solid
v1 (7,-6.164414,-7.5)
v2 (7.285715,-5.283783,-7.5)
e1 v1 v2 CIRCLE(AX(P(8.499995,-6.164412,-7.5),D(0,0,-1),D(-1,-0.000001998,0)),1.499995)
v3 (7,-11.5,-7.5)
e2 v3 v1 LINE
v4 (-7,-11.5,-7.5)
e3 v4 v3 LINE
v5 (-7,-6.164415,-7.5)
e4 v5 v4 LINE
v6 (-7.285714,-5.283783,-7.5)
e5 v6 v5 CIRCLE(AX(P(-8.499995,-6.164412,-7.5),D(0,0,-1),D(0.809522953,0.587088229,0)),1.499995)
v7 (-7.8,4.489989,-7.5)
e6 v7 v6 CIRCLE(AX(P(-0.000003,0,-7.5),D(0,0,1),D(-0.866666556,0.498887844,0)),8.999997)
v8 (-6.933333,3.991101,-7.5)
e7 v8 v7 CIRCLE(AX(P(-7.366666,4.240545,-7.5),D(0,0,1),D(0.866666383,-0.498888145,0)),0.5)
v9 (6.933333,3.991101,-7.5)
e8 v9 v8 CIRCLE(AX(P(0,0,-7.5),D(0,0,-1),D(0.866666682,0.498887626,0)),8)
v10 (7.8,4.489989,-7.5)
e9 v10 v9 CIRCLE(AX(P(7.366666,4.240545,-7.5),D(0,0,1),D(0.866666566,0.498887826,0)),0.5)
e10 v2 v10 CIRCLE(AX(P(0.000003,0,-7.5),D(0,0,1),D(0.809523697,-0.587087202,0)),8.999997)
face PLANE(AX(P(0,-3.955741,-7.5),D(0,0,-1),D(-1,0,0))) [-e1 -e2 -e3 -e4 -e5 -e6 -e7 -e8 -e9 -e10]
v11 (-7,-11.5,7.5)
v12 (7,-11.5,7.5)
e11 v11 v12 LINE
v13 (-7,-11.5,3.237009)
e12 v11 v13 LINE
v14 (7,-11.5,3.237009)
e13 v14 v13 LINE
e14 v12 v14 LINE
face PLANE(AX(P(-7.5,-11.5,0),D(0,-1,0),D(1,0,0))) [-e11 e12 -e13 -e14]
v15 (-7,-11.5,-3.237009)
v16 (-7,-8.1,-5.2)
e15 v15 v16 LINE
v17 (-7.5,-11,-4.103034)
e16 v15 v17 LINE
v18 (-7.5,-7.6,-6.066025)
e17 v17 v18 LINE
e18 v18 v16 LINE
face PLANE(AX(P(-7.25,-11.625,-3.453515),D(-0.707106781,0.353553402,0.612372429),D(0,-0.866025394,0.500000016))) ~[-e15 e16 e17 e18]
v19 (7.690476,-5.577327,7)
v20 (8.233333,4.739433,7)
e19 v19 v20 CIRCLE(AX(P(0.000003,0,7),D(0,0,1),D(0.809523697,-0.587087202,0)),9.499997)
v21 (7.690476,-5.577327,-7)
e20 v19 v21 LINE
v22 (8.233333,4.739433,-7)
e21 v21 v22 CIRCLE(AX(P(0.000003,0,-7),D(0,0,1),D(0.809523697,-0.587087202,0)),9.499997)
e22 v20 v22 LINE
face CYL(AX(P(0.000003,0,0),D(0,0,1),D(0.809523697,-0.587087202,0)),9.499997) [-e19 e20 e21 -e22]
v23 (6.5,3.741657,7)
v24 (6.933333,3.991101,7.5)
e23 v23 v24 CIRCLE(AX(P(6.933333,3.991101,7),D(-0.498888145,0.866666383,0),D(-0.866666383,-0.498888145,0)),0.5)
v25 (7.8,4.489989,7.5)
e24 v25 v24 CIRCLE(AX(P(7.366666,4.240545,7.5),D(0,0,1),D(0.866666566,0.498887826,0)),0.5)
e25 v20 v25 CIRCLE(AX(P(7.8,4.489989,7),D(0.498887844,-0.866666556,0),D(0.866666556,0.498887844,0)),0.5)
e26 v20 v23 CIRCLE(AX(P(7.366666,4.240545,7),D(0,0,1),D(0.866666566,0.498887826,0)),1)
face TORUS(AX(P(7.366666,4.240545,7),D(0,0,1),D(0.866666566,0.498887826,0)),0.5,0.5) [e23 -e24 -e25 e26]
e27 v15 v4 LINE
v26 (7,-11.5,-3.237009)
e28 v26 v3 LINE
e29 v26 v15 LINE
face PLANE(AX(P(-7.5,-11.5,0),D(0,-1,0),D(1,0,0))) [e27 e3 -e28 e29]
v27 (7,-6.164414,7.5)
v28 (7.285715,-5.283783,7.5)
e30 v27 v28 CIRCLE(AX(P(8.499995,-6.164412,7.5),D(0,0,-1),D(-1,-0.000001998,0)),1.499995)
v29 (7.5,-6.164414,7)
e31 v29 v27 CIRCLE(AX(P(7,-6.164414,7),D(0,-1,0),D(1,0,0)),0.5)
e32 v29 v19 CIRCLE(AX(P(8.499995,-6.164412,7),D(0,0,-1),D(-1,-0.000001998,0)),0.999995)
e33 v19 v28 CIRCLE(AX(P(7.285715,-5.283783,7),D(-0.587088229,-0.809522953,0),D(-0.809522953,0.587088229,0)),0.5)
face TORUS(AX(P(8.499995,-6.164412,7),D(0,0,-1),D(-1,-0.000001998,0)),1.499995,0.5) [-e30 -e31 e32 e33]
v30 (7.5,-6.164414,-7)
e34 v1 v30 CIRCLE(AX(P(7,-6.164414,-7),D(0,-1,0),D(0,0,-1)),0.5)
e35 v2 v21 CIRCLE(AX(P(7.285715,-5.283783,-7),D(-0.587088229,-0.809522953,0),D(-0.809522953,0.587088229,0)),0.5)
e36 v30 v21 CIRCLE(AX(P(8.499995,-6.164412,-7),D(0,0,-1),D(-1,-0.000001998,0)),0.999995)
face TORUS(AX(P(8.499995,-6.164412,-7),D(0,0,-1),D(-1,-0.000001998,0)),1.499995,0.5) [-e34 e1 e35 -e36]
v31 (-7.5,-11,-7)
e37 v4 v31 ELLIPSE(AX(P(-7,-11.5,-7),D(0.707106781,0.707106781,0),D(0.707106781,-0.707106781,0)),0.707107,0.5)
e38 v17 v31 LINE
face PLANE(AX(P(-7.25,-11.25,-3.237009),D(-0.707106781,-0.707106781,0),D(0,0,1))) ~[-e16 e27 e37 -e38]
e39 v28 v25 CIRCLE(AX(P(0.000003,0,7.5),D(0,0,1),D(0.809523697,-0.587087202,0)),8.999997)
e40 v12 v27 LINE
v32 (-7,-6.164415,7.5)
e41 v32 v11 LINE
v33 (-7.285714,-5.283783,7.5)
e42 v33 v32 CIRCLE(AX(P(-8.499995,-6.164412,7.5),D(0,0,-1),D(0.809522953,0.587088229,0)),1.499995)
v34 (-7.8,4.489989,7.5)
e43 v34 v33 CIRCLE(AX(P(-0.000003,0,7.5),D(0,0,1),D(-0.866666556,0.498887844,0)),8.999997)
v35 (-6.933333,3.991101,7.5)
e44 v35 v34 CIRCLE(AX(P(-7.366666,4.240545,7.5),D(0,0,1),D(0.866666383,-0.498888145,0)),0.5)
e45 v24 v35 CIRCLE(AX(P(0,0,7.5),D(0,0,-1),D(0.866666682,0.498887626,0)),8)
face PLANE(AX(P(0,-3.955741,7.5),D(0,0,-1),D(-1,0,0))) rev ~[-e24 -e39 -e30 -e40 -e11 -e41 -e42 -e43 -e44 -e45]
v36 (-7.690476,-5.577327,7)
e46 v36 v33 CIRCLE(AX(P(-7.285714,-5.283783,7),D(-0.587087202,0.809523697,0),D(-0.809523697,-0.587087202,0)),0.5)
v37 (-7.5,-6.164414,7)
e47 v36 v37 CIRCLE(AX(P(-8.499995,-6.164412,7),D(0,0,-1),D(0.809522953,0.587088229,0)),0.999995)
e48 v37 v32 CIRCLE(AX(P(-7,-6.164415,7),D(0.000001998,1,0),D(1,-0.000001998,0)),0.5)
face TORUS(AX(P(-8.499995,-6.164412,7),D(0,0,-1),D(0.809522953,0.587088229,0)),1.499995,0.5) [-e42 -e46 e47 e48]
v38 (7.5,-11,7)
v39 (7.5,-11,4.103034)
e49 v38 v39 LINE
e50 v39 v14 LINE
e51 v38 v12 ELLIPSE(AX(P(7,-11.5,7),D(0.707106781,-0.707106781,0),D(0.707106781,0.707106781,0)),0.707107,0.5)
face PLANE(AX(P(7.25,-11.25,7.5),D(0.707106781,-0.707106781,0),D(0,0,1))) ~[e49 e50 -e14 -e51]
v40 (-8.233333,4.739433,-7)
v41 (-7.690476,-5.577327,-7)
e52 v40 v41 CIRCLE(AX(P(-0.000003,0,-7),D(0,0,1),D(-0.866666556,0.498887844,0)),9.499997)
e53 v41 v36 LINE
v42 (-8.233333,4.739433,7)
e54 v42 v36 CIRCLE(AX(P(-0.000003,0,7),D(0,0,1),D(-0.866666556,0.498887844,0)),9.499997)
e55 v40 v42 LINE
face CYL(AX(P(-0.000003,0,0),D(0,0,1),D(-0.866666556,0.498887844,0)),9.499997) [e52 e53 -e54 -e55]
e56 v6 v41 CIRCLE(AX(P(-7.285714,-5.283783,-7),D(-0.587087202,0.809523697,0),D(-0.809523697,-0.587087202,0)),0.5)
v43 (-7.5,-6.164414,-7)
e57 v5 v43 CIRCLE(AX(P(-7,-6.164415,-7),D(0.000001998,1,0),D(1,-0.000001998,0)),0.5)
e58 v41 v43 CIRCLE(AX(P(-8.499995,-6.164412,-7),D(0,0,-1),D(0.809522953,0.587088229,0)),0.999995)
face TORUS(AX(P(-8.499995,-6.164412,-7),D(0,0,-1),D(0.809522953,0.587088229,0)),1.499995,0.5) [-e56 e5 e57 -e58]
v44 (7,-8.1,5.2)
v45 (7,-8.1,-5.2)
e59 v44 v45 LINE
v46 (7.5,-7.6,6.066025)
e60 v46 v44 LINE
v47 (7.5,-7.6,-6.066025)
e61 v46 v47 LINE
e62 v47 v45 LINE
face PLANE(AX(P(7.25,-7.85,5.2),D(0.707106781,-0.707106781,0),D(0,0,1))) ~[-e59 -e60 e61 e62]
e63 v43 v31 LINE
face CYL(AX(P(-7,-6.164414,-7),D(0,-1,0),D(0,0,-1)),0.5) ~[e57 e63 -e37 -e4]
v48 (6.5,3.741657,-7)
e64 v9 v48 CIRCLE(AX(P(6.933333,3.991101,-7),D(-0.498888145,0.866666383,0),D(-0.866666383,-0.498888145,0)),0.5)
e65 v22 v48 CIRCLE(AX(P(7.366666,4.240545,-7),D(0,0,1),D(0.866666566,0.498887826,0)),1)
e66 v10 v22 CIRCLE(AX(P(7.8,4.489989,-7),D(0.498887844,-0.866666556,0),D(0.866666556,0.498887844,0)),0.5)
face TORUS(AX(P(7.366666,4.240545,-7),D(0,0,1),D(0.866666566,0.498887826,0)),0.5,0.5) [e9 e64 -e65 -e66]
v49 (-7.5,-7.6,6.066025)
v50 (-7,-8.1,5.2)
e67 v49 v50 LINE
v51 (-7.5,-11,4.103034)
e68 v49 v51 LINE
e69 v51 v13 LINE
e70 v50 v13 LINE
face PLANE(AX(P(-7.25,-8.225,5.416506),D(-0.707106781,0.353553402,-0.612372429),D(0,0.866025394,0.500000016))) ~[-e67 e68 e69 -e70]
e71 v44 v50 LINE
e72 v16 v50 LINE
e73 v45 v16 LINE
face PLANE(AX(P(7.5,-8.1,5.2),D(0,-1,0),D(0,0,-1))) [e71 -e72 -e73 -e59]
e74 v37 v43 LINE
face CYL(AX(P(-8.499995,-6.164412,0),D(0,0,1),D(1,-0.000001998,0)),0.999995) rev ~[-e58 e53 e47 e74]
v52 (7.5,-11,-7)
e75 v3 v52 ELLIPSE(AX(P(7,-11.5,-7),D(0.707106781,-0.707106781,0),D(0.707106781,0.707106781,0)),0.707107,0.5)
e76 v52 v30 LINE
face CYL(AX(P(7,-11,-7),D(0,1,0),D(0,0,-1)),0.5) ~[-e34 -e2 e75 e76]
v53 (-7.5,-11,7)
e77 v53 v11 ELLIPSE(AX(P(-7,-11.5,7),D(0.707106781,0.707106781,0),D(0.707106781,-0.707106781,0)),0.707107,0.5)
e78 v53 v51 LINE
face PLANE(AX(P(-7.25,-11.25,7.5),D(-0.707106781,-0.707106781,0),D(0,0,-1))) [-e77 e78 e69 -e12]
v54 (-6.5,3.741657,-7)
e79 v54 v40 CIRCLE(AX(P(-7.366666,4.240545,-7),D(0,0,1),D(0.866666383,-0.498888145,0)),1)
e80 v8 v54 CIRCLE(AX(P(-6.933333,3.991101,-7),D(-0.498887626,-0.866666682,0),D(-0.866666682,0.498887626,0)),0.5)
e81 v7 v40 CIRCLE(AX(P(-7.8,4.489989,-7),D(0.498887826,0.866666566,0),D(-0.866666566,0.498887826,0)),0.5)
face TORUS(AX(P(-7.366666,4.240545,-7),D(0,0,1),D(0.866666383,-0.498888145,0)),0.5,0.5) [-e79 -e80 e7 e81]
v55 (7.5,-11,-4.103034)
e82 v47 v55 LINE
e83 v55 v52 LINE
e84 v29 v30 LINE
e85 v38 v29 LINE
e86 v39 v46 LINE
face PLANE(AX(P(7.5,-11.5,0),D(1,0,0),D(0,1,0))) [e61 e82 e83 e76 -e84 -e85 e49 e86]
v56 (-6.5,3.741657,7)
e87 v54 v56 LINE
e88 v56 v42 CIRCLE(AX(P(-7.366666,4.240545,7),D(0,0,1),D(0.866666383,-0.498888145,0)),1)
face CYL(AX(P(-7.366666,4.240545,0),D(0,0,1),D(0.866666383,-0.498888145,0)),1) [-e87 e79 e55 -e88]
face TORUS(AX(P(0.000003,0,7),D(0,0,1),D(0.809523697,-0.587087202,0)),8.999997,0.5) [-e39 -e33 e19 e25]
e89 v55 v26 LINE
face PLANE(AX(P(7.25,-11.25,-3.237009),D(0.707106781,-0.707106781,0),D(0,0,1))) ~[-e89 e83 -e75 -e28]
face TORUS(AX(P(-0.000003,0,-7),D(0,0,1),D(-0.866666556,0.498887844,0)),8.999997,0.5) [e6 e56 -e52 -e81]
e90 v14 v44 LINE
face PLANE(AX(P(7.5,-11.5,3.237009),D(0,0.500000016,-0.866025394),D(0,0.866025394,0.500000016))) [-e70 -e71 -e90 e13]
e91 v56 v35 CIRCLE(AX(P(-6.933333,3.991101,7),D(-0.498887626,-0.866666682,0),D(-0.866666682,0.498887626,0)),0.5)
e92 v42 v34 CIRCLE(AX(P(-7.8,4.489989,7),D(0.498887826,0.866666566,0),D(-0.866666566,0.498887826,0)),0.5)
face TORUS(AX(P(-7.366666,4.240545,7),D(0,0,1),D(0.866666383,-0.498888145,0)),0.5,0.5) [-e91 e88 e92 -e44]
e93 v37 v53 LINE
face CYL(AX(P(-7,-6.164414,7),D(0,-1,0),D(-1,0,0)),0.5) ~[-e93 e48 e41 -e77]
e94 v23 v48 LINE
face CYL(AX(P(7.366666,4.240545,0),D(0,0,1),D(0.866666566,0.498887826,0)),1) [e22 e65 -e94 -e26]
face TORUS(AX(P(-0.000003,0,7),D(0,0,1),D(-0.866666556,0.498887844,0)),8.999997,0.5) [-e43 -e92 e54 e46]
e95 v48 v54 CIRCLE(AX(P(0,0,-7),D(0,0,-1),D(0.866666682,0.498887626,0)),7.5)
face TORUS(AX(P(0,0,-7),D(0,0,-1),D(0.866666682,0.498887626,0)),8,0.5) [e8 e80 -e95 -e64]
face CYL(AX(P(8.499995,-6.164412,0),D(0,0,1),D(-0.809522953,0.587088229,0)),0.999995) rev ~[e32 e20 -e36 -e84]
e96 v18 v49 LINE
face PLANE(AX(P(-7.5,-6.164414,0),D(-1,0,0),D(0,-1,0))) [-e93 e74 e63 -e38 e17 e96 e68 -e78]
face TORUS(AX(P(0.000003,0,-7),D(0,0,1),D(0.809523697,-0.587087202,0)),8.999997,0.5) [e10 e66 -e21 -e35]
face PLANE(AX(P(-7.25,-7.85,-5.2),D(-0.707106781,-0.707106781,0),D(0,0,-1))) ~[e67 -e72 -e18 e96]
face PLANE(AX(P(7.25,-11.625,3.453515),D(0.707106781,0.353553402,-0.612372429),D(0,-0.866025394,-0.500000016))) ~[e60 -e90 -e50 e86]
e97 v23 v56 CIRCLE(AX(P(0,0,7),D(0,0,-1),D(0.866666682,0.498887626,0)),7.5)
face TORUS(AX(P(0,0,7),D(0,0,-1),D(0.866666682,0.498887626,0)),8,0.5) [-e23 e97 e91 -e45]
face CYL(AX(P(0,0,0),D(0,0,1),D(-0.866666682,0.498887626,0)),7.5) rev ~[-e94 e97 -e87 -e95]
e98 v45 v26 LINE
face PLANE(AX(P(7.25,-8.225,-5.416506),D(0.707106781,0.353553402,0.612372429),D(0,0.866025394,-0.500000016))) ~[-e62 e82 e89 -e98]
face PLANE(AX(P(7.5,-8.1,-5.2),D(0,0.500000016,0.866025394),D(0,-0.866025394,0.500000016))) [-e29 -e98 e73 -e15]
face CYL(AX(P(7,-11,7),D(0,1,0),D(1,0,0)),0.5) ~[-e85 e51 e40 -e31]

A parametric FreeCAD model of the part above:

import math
import FreeCAD as App
import Part
import Sketcher
from FreeCAD import Vector
Q = App.Units.Quantity


def edges_at(feature, points):
    """Names of the edges that pass closest to the given points."""
    edges = feature.Shape.Edges
    near = lambda p: min(range(len(edges)), key=lambda i: edges[i].distToShape(Part.Vertex(*p))[0])
    return sorted({f"Edge{near(p) + 1}" for p in points})

doc = App.newDocument("Part")
body = doc.addObject("PartDesign::Body", "Body")

sketch1 = body.newObject("Sketcher::SketchObject", "Sketch")
sketch1.AttachmentSupport = (doc.getObject("XY_Plane"), [""])
sketch1.MapMode = "FlatFace"
sketch1.addGeometry([
    Part.ArcOfCircle(Part.Circle(Vector(0, 0, 0), Vector(0, 0, 1), 7.5), math.radians(150.073567), math.radians(389.926433)),
    Part.ArcOfCircle(Part.Circle(Vector(-7.366666, 4.240545, 0), Vector(0, 0, 1), 1), math.radians(-29.926467), math.radians(150.073554)),
    Part.ArcOfCircle(Part.Circle(Vector(-0.000003, 0, 0), Vector(0, 0, 1), 9.499997), math.radians(150.073552), math.radians(215.950579)),
    Part.ArcOfCircle(Part.Circle(Vector(-8.499995, -6.164412, 0), Vector(0, 0, 1), 0.999995), math.radians(-0.000114), math.radians(35.950651)),
    Part.LineSegment(Vector(-7.5, -6.164414, 0), Vector(-7.5, -11.5, 0)),
    Part.LineSegment(Vector(-7.5, -11.5, 0), Vector(7.5, -11.5, 0)),
    Part.LineSegment(Vector(7.5, -11.5, 0), Vector(7.5, -6.164414, 0)),
    Part.ArcOfCircle(Part.Circle(Vector(8.499995, -6.164412, 0), Vector(0, 0, 1), 0.999995), math.radians(144.049349), math.radians(180.000114)),
    Part.ArcOfCircle(Part.Circle(Vector(0.000003, 0, 0), Vector(0, 0, 1), 9.499997), math.radians(-35.950579), math.radians(29.926448)),
    Part.ArcOfCircle(Part.Circle(Vector(7.366666, 4.240545, 0), Vector(0, 0, 1), 1), math.radians(29.926446), math.radians(209.926467)),
], False)
sketch1.addConstraint([
    Sketcher.Constraint("Tangent", 0, 1, 1, 1),
    Sketcher.Constraint("Tangent", 1, 2, 2, 1),
    Sketcher.Constraint("Tangent", 2, 2, 3, 2),
    Sketcher.Constraint("Tangent", 3, 1, 4, 1),
    Sketcher.Constraint("Coincident", 4, 2, 5, 1),
    Sketcher.Constraint("Coincident", 5, 2, 6, 1),
    Sketcher.Constraint("Tangent", 6, 2, 7, 2),
    Sketcher.Constraint("Tangent", 7, 1, 8, 1),
    Sketcher.Constraint("Tangent", 8, 2, 9, 1),
    Sketcher.Constraint("Tangent", 9, 2, 0, 2),
    Sketcher.Constraint("Vertical", 4),
    Sketcher.Constraint("Horizontal", 5),
    Sketcher.Constraint("Vertical", 6),
    Sketcher.Constraint("Coincident", 0, 3, -1, 1),
    Sketcher.Constraint("Coincident", 2, 3, -1, 1),
    Sketcher.Constraint("Coincident", 8, 3, -1, 1),
    Sketcher.Constraint("Equal", 3, 7),
    Sketcher.Constraint("Equal", 2, 8),
    Sketcher.Constraint("Horizontal", 3, 3, 7, 3),
    Sketcher.Constraint("Horizontal", 1, 3, 9, 3),
    Sketcher.Constraint("Radius", 1, Q("1 mm")),
    Sketcher.Constraint("Radius", 0, Q("7.5 mm")),
    Sketcher.Constraint("DistanceX", 5, 1, 5, 2, Q("15 mm")),
    Sketcher.Constraint("DistanceX", 0, 1, -1, 1, Q("6.5 mm")),
    Sketcher.Constraint("DistanceY", 4, 2, -1, 1, Q("11.5 mm")),
    Sketcher.Constraint("Radius", 3, Q("0.999995 mm")),
])
pad1 = body.newObject("PartDesign::Pad", "Pad")
pad1.Profile = sketch1
pad1.Length = 15
pad1.Midplane = True

sketch2 = body.newObject("Sketcher::SketchObject", "Sketch001")
sketch2.AttachmentSupport = (doc.getObject("YZ_Plane"), [""])
sketch2.MapMode = "FlatFace"
sketch2.AttachmentOffset = App.Placement(Vector(0, 0, 7.5), App.Rotation())
sketch2.addGeometry([
    Part.LineSegment(Vector(-11.5, 3.237009, 0), Vector(-11.5, -3.237009, 0)),
    Part.LineSegment(Vector(-11.5, -3.237009, 0), Vector(-8.1, -5.2, 0)),
    Part.LineSegment(Vector(-8.1, -5.2, 0), Vector(-8.1, 5.2, 0)),
    Part.LineSegment(Vector(-8.1, 5.2, 0), Vector(-11.5, 3.237009, 0)),
], False)
sketch2.addConstraint([
    Sketcher.Constraint("Coincident", 0, 2, 1, 1),
    Sketcher.Constraint("Coincident", 1, 2, 2, 1),
    Sketcher.Constraint("Coincident", 2, 2, 3, 1),
    Sketcher.Constraint("Coincident", 3, 2, 0, 1),
    Sketcher.Constraint("Vertical", 0),
    Sketcher.Constraint("Vertical", 2),
    Sketcher.Constraint("Equal", 1, 3),
    Sketcher.Constraint("Angle", 1, Q("-30.000001 deg")),
    Sketcher.Constraint("DistanceY", 2, 1, 2, 2, Q("10.4 mm")),
    Sketcher.Constraint("DistanceX", 0, 2, -1, 1, Q("11.5 mm")),
    Sketcher.Constraint("DistanceX", 1, 2, -1, 1, Q("8.1 mm")),
    Sketcher.Constraint("DistanceY", 1, 2, -1, 1, Q("5.2 mm")),
])
pocket1 = body.newObject("PartDesign::Pocket", "Pocket")
pocket1.Profile = sketch2
pocket1.Type = "ThroughAll"
doc.recompute()

chamfer = body.newObject("PartDesign::Chamfer", "Chamfer")
chamfer.Base = (pocket1, edges_at(pocket1, [
    (7.5, -11.5, 5.369),
    (7.5, -9.8, 4.219),
    (7.5, -8.1, 0),
    (7.5, -9.8, -4.219),
    (7.5, -11.5, -5.369),
]))
chamfer.Size = 0.5
doc.recompute()

chamfer2 = body.newObject("PartDesign::Chamfer", "Chamfer001")
chamfer2.Base = (chamfer, edges_at(chamfer, [
    (-7.5, -11.5, -5.369),
    (-7.5, -9.8, -4.219),
    (-7.5, -8.1, 0),
    (-7.5, -9.8, 4.219),
    (-7.5, -11.5, 5.369),
]))
chamfer2.Size = 0.5
doc.recompute()

fillet = body.newObject("PartDesign::Fillet", "Fillet")
fillet.Base = (chamfer2, edges_at(chamfer2, [(6.868, 5.107, -7.5)]))
fillet.Radius = 0.5
doc.recompute()

fillet2 = body.newObject("PartDesign::Fillet", "Fillet001")
fillet2.Base = (fillet, edges_at(fillet, [(6.868, 5.107, 7.5)]))
fillet2.Radius = 0.5

doc.recompute()
